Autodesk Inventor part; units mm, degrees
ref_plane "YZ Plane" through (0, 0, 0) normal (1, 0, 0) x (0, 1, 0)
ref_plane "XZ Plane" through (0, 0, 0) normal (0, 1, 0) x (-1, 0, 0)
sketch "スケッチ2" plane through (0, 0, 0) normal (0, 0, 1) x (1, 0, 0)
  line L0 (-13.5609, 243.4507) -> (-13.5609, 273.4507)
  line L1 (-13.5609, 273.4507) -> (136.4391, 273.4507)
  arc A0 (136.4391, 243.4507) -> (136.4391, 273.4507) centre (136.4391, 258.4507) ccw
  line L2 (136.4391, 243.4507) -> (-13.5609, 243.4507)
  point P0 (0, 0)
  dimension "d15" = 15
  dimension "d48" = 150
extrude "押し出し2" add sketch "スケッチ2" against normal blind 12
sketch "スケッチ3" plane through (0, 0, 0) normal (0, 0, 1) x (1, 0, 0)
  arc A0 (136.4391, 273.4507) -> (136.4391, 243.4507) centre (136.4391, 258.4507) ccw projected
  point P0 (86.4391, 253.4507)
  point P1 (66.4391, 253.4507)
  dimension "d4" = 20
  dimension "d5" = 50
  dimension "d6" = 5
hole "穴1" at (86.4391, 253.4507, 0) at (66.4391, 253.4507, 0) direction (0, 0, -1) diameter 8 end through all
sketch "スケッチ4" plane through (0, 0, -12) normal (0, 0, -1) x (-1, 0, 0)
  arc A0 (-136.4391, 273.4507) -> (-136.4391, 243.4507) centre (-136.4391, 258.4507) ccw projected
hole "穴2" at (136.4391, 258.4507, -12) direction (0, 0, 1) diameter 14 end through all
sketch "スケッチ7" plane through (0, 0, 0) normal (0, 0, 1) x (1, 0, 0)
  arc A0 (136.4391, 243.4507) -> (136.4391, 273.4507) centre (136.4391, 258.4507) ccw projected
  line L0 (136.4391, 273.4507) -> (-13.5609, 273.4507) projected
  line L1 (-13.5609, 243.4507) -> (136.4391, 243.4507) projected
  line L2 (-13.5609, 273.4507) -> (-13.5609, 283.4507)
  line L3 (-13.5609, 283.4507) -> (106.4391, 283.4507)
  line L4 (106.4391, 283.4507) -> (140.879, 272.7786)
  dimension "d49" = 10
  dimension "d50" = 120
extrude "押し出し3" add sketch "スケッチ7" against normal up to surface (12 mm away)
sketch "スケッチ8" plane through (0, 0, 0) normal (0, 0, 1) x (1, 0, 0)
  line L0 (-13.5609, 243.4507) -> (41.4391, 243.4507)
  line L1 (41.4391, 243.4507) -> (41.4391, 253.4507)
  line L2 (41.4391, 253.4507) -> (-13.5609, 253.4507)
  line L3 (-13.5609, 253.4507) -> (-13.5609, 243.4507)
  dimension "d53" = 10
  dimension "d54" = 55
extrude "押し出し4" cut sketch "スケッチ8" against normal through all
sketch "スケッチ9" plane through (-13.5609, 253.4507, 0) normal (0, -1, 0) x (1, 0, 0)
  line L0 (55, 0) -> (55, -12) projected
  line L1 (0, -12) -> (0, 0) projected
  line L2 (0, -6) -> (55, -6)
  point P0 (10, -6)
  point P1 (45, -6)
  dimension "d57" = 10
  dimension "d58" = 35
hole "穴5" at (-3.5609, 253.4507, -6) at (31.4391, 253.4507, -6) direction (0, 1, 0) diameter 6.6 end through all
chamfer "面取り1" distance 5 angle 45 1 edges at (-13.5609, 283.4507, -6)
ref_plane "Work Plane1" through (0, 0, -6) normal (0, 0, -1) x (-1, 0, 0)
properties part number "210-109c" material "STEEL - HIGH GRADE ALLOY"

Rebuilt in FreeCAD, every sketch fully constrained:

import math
import FreeCAD as App
import Part
import Sketcher

V = App.Vector
Q = App.Units.Quantity


def edges_at(feature, points):
    """Names of the edges that pass closest to the given points."""
    edges = feature.Shape.Edges
    near = lambda p: min(range(len(edges)), key=lambda i: edges[i].distToShape(Part.Vertex(*p))[0])
    return sorted({f"Edge{near(p) + 1}" for p in points})


def add_polygon(sketch, points):
    """Adds a closed chain of lines whose ends are joined by coincident constraints."""
    first, n = sketch.GeometryCount, len(points)
    for a, b in zip(points, points[1:] + points[:1]):
        sketch.addGeometry(Part.LineSegment(App.Vector(*a, 0), App.Vector(*b, 0)), False)
    for i in range(n):
        sketch.addConstraint(Sketcher.Constraint("Coincident", first + i, 2, first + (i + 1) % n, 1))

doc = App.newDocument("Part")
body = doc.addObject("PartDesign::Body", "Body")

sketch1 = body.newObject("Sketcher::SketchObject", "Sketch")
sketch1.AttachmentSupport = (doc.getObject("XY_Plane"), [""])
sketch1.MapMode = "FlatFace"
sketch1.addGeometry(Part.LineSegment(V(-14, 273, 0), V(-14, 243, 0)), False)
sketch1.addGeometry(Part.LineSegment(V(-14, 243, 0), V(136, 243, 0)), False)
sketch1.addGeometry(Part.ArcOfCircle(Part.Circle(V(136, 258, 0), V(0, 0, 1), 15), math.radians(-90), math.radians(90)), False)
sketch1.addGeometry(Part.LineSegment(V(136, 273, 0), V(-14, 273, 0)), False)
sketch1.addConstraint(Sketcher.Constraint("Coincident", 0, 2, 1, 1))
sketch1.addConstraint(Sketcher.Constraint("Tangent", 1, 2, 2, 1))
sketch1.addConstraint(Sketcher.Constraint("Tangent", 2, 2, 3, 1))
sketch1.addConstraint(Sketcher.Constraint("Coincident", 3, 2, 0, 1))
sketch1.addConstraint(Sketcher.Constraint("Vertical", 0))
sketch1.addConstraint(Sketcher.Constraint("Horizontal", 1))
sketch1.addConstraint(Sketcher.Constraint("Horizontal", 3))
sketch1.addConstraint(Sketcher.Constraint("Radius", 2, Q("15 mm")))
sketch1.addConstraint(Sketcher.Constraint("DistanceX", 1, 1, 1, 2, Q("150 mm")))
sketch1.addConstraint(Sketcher.Constraint("DistanceX", -1, 1, 2, 3, Q("136.439 mm")))
sketch1.addConstraint(Sketcher.Constraint("DistanceY", -1, 1, 2, 3, Q("258.4507 mm")))
pad1 = body.newObject("PartDesign::Pad", "Pad")
pad1.Profile = sketch1
pad1.Length = 12
pad1.Reversed = True

sketch2 = body.newObject("Sketcher::SketchObject", "Sketch001")
sketch2.AttachmentSupport = (doc.getObject("XY_Plane"), [""])
sketch2.MapMode = "FlatFace"
sketch2.addGeometry(Part.Circle(V(86.4, 253.5, 0), V(0, 0, 1), 4), False)
sketch2.addGeometry(Part.Circle(V(66.4, 253.5, 0), V(0, 0, 1), 4), False)
sketch2.addConstraint(Sketcher.Constraint("Equal", 0, 1))
sketch2.addConstraint(Sketcher.Constraint("Horizontal", 0, 3, 1, 3))
sketch2.addConstraint(Sketcher.Constraint("Diameter", 0, Q("8 mm")))
sketch2.addConstraint(Sketcher.Constraint("DistanceX", 1, 3, 0, 3, Q("20 mm")))
sketch2.addConstraint(Sketcher.Constraint("DistanceX", -1, 1, 0, 3, Q("86.439 mm")))
sketch2.addConstraint(Sketcher.Constraint("DistanceY", -1, 1, 0, 3, Q("253.4507 mm")))
doc.recompute()
hole = body.newObject("PartDesign::Hole", "Hole")
hole.Profile = sketch2
hole.ThreadType = "None"
hole.Diameter = 8
hole.DepthType = "ThroughAll"

sketch3 = body.newObject("Sketcher::SketchObject", "Sketch002")
sketch3.AttachmentSupport = (doc.getObject("XY_Plane"), [""])
sketch3.MapMode = "FlatFace"
sketch3.AttachmentOffset = App.Placement(V(0, 0, -12), App.Rotation())
sketch3.addGeometry(Part.Circle(V(136, 258, 0), V(0, 0, 1), 7), False)
sketch3.addConstraint(Sketcher.Constraint("Diameter", 0, Q("14 mm")))
sketch3.addConstraint(Sketcher.Constraint("DistanceX", -1, 1, 0, 3, Q("136.439 mm")))
sketch3.addConstraint(Sketcher.Constraint("DistanceY", -1, 1, 0, 3, Q("258.4507 mm")))
doc.recompute()
hole2 = body.newObject("PartDesign::Hole", "Hole001")
hole2.Profile = sketch3
hole2.ThreadType = "None"
hole2.Diameter = 14
hole2.DepthType = "ThroughAll"
hole2.Reversed = True

sketch4 = body.newObject("Sketcher::SketchObject", "Sketch003")
sketch4.AttachmentSupport = (doc.getObject("XY_Plane"), [""])
sketch4.MapMode = "FlatFace"
sketch4.addGeometry(Part.ArcOfCircle(Part.Circle(V(136.4, 258.5, 0), V(0, 0, 1), 15), math.radians(72.78), math.radians(90)), False)
sketch4.addGeometry(Part.LineSegment(V(140.9, 272.8, 0), V(106.4, 283.5, 0)), False)
sketch4.addGeometry(Part.LineSegment(V(106.4, 283.5, 0), V(-13.6, 283.5, 0)), False)
sketch4.addGeometry(Part.LineSegment(V(-13.6, 283.5, 0), V(-13.6, 273.5, 0)), False)
sketch4.addGeometry(Part.LineSegment(V(-13.6, 273.5, 0), V(136.4, 273.5, 0)), False)
sketch4.addConstraint(Sketcher.Constraint("Tangent", 0, 1, 1, 1))
sketch4.addConstraint(Sketcher.Constraint("Coincident", 1, 2, 2, 1))
sketch4.addConstraint(Sketcher.Constraint("Coincident", 2, 2, 3, 1))
sketch4.addConstraint(Sketcher.Constraint("Coincident", 3, 2, 4, 1))
sketch4.addConstraint(Sketcher.Constraint("Tangent", 4, 2, 0, 2))
sketch4.addConstraint(Sketcher.Constraint("Horizontal", 2))
sketch4.addConstraint(Sketcher.Constraint("Vertical", 3))
sketch4.addConstraint(Sketcher.Constraint("Horizontal", 4))
sketch4.addConstraint(Sketcher.Constraint("DistanceX", 2, 2, 2, 1, Q("120 mm")))
sketch4.addConstraint(Sketcher.Constraint("DistanceY", 3, 2, 3, 1, Q("10 mm")))
sketch4.addConstraint(Sketcher.Constraint("Radius", 0, Q("15 mm")))
sketch4.addConstraint(Sketcher.Constraint("DistanceX", 4, 1, 4, 2, Q("150 mm")))
sketch4.addConstraint(Sketcher.Constraint("DistanceX", -1, 1, 0, 3, Q("136.439 mm")))
sketch4.addConstraint(Sketcher.Constraint("DistanceY", -1, 1, 0, 3, Q("258.4507 mm")))
pad2 = body.newObject("PartDesign::Pad", "Pad001")
pad2.Profile = sketch4
pad2.Length = 12
pad2.Reversed = True

sketch5 = body.newObject("Sketcher::SketchObject", "Sketch004")
sketch5.AttachmentSupport = (doc.getObject("XY_Plane"), [""])
sketch5.MapMode = "FlatFace"
add_polygon(sketch5, [(-14, 253), (-14, 243), (41, 243), (41, 253)])
sketch5.addConstraint(Sketcher.Constraint("Vertical", 0))
sketch5.addConstraint(Sketcher.Constraint("Horizontal", 1))
sketch5.addConstraint(Sketcher.Constraint("Vertical", 2))
sketch5.addConstraint(Sketcher.Constraint("Horizontal", 3))
sketch5.addConstraint(Sketcher.Constraint("DistanceX", 1, 1, 1, 2, Q("55 mm")))
sketch5.addConstraint(Sketcher.Constraint("DistanceY", 0, 2, 0, 1, Q("10 mm")))
sketch5.addConstraint(Sketcher.Constraint("DistanceX", 0, 2, -1, 1, Q("13.561 mm")))
sketch5.addConstraint(Sketcher.Constraint("DistanceY", -1, 1, 0, 2, Q("243.4507 mm")))
pocket1 = body.newObject("PartDesign::Pocket", "Pocket")
pocket1.Profile = sketch5
pocket1.Type = "ThroughAll"

sketch6 = body.newObject("Sketcher::SketchObject", "Sketch005")
sketch6.AttachmentSupport = (doc.getObject("XZ_Plane"), [""])
sketch6.MapMode = "FlatFace"
sketch6.AttachmentOffset = App.Placement(V(0, 0, -253.4507), App.Rotation())
sketch6.addGeometry(Part.Circle(V(-3.6, -6, 0), V(0, 0, 1), 3.3), False)
sketch6.addGeometry(Part.Circle(V(31.4, -6, 0), V(0, 0, 1), 3.3), False)
sketch6.addConstraint(Sketcher.Constraint("Equal", 0, 1))
sketch6.addConstraint(Sketcher.Constraint("Horizontal", 0, 3, 1, 3))
sketch6.addConstraint(Sketcher.Constraint("Diameter", 0, Q("6.6 mm")))
sketch6.addConstraint(Sketcher.Constraint("DistanceY", 0, 3, -1, 1, Q("6 mm")))
sketch6.addConstraint(Sketcher.Constraint("DistanceX", 0, 3, 1, 3, Q("35 mm")))
sketch6.addConstraint(Sketcher.Constraint("DistanceX", 0, 3, -1, 1, Q("3.561 mm")))
doc.recompute()
hole3 = body.newObject("PartDesign::Hole", "Hole002")
hole3.Profile = sketch6
hole3.ThreadType = "None"
hole3.Diameter = 6.6
hole3.DepthType = "ThroughAll"
doc.recompute()

chamfer = body.newObject("PartDesign::Chamfer", "Chamfer")
chamfer.Base = (hole3, edges_at(hole3, [(-13.561, 283.451, -6)]))
chamfer.Size = 5

doc.recompute()
